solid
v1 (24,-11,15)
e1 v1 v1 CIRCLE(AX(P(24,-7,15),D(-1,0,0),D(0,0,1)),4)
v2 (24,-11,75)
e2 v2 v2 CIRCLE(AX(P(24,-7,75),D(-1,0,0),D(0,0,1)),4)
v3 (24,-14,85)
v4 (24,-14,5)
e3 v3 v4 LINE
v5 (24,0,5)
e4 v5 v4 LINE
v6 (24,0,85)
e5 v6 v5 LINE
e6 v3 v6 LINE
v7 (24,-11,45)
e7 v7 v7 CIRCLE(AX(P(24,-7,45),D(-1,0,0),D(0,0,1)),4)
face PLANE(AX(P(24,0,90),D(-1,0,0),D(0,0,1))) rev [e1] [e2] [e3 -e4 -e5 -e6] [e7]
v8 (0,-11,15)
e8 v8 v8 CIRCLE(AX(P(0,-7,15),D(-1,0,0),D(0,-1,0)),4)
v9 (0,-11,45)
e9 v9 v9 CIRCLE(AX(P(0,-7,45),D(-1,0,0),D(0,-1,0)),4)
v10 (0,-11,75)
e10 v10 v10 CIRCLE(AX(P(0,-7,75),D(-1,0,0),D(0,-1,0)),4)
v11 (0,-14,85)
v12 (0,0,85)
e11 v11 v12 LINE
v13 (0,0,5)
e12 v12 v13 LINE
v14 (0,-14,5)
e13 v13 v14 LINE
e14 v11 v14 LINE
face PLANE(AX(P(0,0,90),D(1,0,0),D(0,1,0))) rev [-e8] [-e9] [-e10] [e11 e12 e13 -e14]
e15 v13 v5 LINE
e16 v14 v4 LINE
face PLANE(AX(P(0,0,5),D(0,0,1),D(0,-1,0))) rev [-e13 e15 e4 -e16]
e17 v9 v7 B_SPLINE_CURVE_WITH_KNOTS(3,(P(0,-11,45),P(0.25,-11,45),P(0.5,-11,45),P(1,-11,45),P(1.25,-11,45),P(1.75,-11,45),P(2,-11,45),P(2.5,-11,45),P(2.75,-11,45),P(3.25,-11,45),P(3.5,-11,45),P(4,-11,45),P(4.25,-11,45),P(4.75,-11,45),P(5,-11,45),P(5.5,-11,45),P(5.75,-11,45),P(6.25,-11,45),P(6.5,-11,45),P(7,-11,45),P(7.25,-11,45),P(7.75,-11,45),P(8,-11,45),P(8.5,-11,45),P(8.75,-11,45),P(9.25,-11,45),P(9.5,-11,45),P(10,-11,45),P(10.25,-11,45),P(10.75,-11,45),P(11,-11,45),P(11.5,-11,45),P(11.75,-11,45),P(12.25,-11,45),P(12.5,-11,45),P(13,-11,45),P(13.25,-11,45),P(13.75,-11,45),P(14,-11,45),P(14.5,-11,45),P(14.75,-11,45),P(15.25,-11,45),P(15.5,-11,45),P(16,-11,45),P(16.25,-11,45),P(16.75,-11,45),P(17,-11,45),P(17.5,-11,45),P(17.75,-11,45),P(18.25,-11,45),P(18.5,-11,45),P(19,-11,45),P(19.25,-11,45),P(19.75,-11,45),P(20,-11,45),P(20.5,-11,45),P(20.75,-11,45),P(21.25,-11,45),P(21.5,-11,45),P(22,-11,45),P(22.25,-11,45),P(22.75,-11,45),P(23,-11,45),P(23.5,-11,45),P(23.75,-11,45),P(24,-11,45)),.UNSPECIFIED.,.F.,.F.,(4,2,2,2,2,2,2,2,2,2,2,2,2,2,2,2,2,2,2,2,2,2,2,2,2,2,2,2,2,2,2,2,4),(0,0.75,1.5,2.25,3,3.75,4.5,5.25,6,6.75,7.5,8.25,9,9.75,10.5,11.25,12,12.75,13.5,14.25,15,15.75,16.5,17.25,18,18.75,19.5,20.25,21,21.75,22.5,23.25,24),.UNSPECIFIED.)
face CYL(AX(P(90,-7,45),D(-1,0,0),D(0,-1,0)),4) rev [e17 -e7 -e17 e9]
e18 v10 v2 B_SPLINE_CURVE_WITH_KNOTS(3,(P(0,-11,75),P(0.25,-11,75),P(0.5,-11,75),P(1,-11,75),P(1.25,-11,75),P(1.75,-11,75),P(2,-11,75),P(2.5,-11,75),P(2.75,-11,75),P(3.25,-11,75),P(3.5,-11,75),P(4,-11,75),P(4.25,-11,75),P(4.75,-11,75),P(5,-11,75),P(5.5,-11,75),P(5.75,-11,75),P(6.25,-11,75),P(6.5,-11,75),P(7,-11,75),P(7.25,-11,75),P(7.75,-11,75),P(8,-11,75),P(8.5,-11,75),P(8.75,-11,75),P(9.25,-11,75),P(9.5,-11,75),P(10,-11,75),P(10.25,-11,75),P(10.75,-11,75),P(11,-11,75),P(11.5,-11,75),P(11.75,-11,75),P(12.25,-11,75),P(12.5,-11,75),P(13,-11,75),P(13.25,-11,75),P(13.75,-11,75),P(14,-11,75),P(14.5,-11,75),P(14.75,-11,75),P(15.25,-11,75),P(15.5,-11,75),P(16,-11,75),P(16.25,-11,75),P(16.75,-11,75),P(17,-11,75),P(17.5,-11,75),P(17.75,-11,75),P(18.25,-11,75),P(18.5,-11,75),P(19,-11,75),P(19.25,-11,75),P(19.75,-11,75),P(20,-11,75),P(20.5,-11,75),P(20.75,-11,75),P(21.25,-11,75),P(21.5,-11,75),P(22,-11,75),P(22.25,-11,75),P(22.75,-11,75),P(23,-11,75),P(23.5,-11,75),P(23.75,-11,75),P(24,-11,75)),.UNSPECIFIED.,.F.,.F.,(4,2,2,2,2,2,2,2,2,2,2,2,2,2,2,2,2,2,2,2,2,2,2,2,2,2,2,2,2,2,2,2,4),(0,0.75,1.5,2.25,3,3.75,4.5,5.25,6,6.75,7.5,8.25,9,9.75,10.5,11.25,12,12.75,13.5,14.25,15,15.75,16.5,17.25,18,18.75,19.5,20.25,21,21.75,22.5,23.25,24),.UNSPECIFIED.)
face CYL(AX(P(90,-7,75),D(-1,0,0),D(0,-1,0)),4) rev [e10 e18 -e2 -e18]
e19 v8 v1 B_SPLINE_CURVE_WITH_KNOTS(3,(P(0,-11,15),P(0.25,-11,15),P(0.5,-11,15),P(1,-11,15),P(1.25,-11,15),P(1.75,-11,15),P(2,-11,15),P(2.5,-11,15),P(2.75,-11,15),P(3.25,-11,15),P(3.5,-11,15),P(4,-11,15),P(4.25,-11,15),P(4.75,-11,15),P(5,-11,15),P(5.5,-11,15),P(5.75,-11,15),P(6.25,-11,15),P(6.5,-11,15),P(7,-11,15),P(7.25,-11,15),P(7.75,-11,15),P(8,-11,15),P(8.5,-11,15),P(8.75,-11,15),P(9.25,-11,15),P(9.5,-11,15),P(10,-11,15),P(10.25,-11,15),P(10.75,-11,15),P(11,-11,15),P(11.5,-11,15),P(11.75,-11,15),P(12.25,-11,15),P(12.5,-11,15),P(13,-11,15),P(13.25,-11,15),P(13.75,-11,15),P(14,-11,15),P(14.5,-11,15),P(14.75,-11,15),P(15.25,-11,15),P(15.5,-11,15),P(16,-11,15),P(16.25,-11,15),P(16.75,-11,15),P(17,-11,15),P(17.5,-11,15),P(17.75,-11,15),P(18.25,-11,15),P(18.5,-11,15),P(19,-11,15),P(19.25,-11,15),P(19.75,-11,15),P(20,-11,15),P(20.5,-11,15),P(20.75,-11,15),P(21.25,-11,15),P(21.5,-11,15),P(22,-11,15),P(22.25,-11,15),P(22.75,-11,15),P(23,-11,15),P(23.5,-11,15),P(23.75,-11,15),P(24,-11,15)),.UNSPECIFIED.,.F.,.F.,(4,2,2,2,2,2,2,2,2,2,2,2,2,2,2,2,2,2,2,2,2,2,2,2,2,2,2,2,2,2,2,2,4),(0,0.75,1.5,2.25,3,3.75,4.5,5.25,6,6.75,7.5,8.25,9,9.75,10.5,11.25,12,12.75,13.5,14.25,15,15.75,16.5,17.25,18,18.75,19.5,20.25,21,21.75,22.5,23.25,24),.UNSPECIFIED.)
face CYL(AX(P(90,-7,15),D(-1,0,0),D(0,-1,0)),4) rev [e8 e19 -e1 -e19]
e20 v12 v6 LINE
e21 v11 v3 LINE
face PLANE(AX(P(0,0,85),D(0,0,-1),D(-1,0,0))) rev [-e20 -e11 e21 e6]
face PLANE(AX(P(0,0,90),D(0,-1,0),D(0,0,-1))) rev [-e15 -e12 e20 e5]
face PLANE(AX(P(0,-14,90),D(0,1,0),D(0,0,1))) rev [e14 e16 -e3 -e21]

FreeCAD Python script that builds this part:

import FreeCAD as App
import Part
import Sketcher

V = App.Vector
Q = App.Units.Quantity

doc = App.newDocument("Part")
body = doc.addObject("PartDesign::Body", "Body")

# Sketch on XY plane
sketch1 = body.newObject("Sketcher::SketchObject", "Sketch")
sketch1.AttachmentSupport = (doc.getObject("XY_Plane"), [""])
sketch1.MapMode = "FlatFace"
sketch1.addGeometry(Part.LineSegment(V(0, 0, 0), V(0, -14, 0)), False)
sketch1.addGeometry(Part.LineSegment(V(0, -14, 0), V(24, -14, 0)), False)
sketch1.addGeometry(Part.LineSegment(V(24, -14, 0), V(24, 0, 0)), False)
sketch1.addGeometry(Part.LineSegment(V(24, 0, 0), V(0, 0, 0)), False)
sketch1.addConstraint(Sketcher.Constraint("Coincident", 0, 2, 1, 1))
sketch1.addConstraint(Sketcher.Constraint("Coincident", 1, 2, 2, 1))
sketch1.addConstraint(Sketcher.Constraint("Coincident", 2, 2, 3, 1))
sketch1.addConstraint(Sketcher.Constraint("Coincident", 3, 2, 0, 1))
sketch1.addConstraint(Sketcher.Constraint("Vertical", 0))
sketch1.addConstraint(Sketcher.Constraint("Horizontal", 1))
sketch1.addConstraint(Sketcher.Constraint("Vertical", 2))
sketch1.addConstraint(Sketcher.Constraint("Horizontal", 3))
sketch1.addConstraint(Sketcher.Constraint("Coincident", 3, 2, -1, 1))
sketch1.addConstraint(Sketcher.Constraint("DistanceX", 1, 1, 1, 2, Q("24 mm")))
sketch1.addConstraint(Sketcher.Constraint("DistanceY", 0, 2, 0, 1, Q("14 mm")))
pad1 = body.newObject("PartDesign::Pad", "Pad")
pad1.Profile = sketch1
pad1.Length = 90

# Sketch on YZ plane
sketch2 = body.newObject("Sketcher::SketchObject", "Sketch001")
sketch2.AttachmentSupport = (doc.getObject("YZ_Plane"), [""])
sketch2.MapMode = "FlatFace"
sketch2.addGeometry(Part.Circle(V(-7, 15, 0), V(0, 0, 1), 4), False)
sketch2.addGeometry(Part.Circle(V(-7, 45, 0), V(0, 0, 1), 4), False)
sketch2.addGeometry(Part.Circle(V(-7, 75, 0), V(0, 0, 1), 4), False)
sketch2.addConstraint(Sketcher.Constraint("Equal", 0, 1))
sketch2.addConstraint(Sketcher.Constraint("Equal", 1, 2))
sketch2.addConstraint(Sketcher.Constraint("Vertical", 0, 3, 1, 3))
sketch2.addConstraint(Sketcher.Constraint("Vertical", 1, 3, 2, 3))
sketch2.addConstraint(Sketcher.Constraint("Diameter", 0, Q("8 mm")))
sketch2.addConstraint(Sketcher.Constraint("DistanceX", 0, 3, -1, 1, Q("7 mm")))
sketch2.addConstraint(Sketcher.Constraint("DistanceY", -1, 1, 0, 3, Q("15 mm")))
sketch2.addConstraint(Sketcher.Constraint("DistanceY", -1, 1, 1, 3, Q("45 mm")))
sketch2.addConstraint(Sketcher.Constraint("DistanceY", -1, 1, 2, 3, Q("75 mm")))
pocket1 = body.newObject("PartDesign::Pocket", "Pocket")
pocket1.Profile = sketch2
pocket1.Length = 90
pocket1.Reversed = True

# Sketch on YZ plane
sketch3 = body.newObject("Sketcher::SketchObject", "Sketch002")
sketch3.AttachmentSupport = (doc.getObject("YZ_Plane"), [""])
sketch3.MapMode = "FlatFace"
sketch3.AttachmentOffset = App.Placement(V(0, 0, 24), App.Rotation())
sketch3.addGeometry(Part.LineSegment(V(0, 90, 0), V(-14, 90, 0)), False)
sketch3.addGeometry(Part.LineSegment(V(-14, 90, 0), V(-14, 85, 0)), False)
sketch3.addGeometry(Part.LineSegment(V(-14, 85, 0), V(0, 85, 0)), False)
sketch3.addGeometry(Part.LineSegment(V(0, 85, 0), V(0, 90, 0)), False)
sketch3.addGeometry(Part.LineSegment(V(0, 5, 0), V(-14, 5, 0)), False)
sketch3.addGeometry(Part.LineSegment(V(-14, 5, 0), V(-14, 0, 0)), False)
sketch3.addGeometry(Part.LineSegment(V(-14, 0, 0), V(0, 0, 0)), False)
sketch3.addGeometry(Part.LineSegment(V(0, 0, 0), V(0, 5, 0)), False)
sketch3.addConstraint(Sketcher.Constraint("Coincident", 0, 2, 1, 1))
sketch3.addConstraint(Sketcher.Constraint("Coincident", 1, 2, 2, 1))
sketch3.addConstraint(Sketcher.Constraint("Coincident", 2, 2, 3, 1))
sketch3.addConstraint(Sketcher.Constraint("Coincident", 3, 2, 0, 1))
sketch3.addConstraint(Sketcher.Constraint("Coincident", 4, 2, 5, 1))
sketch3.addConstraint(Sketcher.Constraint("Coincident", 5, 2, 6, 1))
sketch3.addConstraint(Sketcher.Constraint("Coincident", 6, 2, 7, 1))
sketch3.addConstraint(Sketcher.Constraint("Coincident", 7, 2, 4, 1))
sketch3.addConstraint(Sketcher.Constraint("Horizontal", 0))
sketch3.addConstraint(Sketcher.Constraint("Vertical", 1))
sketch3.addConstraint(Sketcher.Constraint("Horizontal", 2))
sketch3.addConstraint(Sketcher.Constraint("Vertical", 3))
sketch3.addConstraint(Sketcher.Constraint("Horizontal", 4))
sketch3.addConstraint(Sketcher.Constraint("Vertical", 5))
sketch3.addConstraint(Sketcher.Constraint("Horizontal", 6))
sketch3.addConstraint(Sketcher.Constraint("Vertical", 7))
sketch3.addConstraint(Sketcher.Constraint("Coincident", 6, 2, -1, 1))
sketch3.addConstraint(Sketcher.Constraint("PointOnObject", 2, 2, -2))
sketch3.addConstraint(Sketcher.Constraint("Vertical", 1, 2, 4, 2))
sketch3.addConstraint(Sketcher.Constraint("Equal", 3, 5))
sketch3.addConstraint(Sketcher.Constraint("DistanceX", 0, 2, 0, 1, Q("14 mm")))
sketch3.addConstraint(Sketcher.Constraint("DistanceY", 1, 2, 1, 1, Q("5 mm")))
sketch3.addConstraint(Sketcher.Constraint("DistanceY", -1, 1, 0, 2, Q("90 mm")))
pocket2 = body.newObject("PartDesign::Pocket", "Pocket001")
pocket2.Profile = sketch3
pocket2.Type = "ThroughAll"

doc.recompute()
